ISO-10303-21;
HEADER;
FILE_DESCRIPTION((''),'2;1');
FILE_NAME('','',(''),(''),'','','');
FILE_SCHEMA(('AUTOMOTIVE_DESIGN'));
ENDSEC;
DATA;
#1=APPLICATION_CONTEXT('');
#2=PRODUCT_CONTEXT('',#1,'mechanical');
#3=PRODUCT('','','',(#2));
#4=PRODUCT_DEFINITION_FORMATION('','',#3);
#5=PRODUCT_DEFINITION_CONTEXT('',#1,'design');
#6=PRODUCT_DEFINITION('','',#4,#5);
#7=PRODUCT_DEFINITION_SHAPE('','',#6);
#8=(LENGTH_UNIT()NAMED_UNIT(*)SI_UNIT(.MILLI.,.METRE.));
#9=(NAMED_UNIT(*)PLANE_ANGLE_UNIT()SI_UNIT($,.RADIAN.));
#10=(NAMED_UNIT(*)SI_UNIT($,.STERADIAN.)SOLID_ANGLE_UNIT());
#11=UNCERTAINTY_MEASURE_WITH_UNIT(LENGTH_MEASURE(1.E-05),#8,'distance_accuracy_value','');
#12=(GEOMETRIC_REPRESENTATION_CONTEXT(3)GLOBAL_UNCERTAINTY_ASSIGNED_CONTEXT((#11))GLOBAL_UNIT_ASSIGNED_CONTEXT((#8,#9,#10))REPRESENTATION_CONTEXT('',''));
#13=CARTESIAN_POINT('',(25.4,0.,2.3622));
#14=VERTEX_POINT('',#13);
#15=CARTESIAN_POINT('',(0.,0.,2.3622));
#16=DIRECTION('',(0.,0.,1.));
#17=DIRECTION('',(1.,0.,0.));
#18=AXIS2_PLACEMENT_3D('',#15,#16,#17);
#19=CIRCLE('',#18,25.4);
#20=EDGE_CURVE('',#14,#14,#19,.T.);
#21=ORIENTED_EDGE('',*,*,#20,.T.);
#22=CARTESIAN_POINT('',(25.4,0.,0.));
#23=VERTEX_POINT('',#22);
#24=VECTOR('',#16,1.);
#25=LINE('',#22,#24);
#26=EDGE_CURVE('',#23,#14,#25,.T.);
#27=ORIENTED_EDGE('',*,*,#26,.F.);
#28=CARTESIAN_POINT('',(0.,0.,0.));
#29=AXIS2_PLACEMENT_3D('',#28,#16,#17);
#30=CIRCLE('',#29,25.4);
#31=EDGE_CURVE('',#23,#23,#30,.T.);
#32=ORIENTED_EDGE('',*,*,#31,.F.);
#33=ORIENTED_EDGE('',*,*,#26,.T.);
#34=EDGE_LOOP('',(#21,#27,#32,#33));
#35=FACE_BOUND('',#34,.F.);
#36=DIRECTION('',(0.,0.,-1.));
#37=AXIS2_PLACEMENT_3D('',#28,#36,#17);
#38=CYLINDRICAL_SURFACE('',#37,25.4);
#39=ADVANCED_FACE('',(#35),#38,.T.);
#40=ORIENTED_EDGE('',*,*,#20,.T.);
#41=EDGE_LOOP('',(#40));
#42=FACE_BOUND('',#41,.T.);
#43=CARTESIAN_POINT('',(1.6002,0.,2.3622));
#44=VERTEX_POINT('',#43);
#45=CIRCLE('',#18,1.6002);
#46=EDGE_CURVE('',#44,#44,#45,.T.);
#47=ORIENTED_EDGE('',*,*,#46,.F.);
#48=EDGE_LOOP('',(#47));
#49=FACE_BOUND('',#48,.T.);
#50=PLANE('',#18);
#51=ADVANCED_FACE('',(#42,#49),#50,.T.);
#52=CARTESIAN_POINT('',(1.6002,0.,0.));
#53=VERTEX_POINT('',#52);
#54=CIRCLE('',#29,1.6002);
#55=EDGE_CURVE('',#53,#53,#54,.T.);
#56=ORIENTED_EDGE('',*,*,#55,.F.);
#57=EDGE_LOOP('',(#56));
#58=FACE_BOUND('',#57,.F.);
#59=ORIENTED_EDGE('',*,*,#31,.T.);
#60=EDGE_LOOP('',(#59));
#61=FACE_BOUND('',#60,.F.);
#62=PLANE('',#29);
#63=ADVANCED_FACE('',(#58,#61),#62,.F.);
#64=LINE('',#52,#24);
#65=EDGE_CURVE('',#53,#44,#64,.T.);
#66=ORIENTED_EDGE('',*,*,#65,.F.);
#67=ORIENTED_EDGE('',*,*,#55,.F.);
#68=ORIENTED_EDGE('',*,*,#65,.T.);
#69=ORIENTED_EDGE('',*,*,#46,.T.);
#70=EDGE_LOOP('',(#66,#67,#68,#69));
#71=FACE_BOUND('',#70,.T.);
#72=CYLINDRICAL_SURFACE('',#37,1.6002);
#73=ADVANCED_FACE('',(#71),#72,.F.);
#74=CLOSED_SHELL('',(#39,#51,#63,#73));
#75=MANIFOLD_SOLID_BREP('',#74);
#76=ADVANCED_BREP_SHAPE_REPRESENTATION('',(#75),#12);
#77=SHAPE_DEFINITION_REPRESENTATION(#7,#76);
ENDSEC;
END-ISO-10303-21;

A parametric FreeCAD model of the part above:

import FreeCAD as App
import Part
import Sketcher

V = App.Vector
Q = App.Units.Quantity

doc = App.newDocument("Part")
params = doc.addObject("Spreadsheet::Sheet", "Params")
for row, (alias, value) in enumerate([
    ("sketch1_diameter", "2 in"),
    ("sketch1_diameter2", "0.126 in"),
    ("pad1_length", "0.093 in"),
], start=1):
    params.set(f"A{row}", alias)
    params.set(f"B{row}", "=" + value)
    params.setAlias(f"B{row}", alias)

body = doc.addObject("PartDesign::Body", "Body")

sketch1 = doc.addObject("Sketcher::SketchObject", "Sketch")
body.addObject(sketch1)
sketch1.AttachmentSupport = (doc.XY_Plane, [""])
sketch1.MapMode = "FlatFace"
sketch1.addGeometry(Part.Circle(V(0, 0, 0), V(0, 0, 1), 25.4), False)
sketch1.addGeometry(Part.Circle(V(0, 0, 0), V(0, 0, 1), 1.6002), False)
sketch1.addConstraint(Sketcher.Constraint("Coincident", 0, 3, -1, 1))
sketch1.addConstraint(Sketcher.Constraint("Coincident", 1, 3, -1, 1))
sketch1.addConstraint(Sketcher.Constraint("Diameter", 0, Q("2 in")))
sketch1.addConstraint(Sketcher.Constraint("Diameter", 1, Q("0.126 in")))
sketch1.setExpression("Constraints[2]", "Params.sketch1_diameter")
sketch1.setExpression("Constraints[3]", "Params.sketch1_diameter2")
pad1 = doc.addObject("PartDesign::Pad", "Pad")
body.addObject(pad1)
pad1.Profile = sketch1
pad1.setExpression("Length", "Params.pad1_length")

doc.recompute()
